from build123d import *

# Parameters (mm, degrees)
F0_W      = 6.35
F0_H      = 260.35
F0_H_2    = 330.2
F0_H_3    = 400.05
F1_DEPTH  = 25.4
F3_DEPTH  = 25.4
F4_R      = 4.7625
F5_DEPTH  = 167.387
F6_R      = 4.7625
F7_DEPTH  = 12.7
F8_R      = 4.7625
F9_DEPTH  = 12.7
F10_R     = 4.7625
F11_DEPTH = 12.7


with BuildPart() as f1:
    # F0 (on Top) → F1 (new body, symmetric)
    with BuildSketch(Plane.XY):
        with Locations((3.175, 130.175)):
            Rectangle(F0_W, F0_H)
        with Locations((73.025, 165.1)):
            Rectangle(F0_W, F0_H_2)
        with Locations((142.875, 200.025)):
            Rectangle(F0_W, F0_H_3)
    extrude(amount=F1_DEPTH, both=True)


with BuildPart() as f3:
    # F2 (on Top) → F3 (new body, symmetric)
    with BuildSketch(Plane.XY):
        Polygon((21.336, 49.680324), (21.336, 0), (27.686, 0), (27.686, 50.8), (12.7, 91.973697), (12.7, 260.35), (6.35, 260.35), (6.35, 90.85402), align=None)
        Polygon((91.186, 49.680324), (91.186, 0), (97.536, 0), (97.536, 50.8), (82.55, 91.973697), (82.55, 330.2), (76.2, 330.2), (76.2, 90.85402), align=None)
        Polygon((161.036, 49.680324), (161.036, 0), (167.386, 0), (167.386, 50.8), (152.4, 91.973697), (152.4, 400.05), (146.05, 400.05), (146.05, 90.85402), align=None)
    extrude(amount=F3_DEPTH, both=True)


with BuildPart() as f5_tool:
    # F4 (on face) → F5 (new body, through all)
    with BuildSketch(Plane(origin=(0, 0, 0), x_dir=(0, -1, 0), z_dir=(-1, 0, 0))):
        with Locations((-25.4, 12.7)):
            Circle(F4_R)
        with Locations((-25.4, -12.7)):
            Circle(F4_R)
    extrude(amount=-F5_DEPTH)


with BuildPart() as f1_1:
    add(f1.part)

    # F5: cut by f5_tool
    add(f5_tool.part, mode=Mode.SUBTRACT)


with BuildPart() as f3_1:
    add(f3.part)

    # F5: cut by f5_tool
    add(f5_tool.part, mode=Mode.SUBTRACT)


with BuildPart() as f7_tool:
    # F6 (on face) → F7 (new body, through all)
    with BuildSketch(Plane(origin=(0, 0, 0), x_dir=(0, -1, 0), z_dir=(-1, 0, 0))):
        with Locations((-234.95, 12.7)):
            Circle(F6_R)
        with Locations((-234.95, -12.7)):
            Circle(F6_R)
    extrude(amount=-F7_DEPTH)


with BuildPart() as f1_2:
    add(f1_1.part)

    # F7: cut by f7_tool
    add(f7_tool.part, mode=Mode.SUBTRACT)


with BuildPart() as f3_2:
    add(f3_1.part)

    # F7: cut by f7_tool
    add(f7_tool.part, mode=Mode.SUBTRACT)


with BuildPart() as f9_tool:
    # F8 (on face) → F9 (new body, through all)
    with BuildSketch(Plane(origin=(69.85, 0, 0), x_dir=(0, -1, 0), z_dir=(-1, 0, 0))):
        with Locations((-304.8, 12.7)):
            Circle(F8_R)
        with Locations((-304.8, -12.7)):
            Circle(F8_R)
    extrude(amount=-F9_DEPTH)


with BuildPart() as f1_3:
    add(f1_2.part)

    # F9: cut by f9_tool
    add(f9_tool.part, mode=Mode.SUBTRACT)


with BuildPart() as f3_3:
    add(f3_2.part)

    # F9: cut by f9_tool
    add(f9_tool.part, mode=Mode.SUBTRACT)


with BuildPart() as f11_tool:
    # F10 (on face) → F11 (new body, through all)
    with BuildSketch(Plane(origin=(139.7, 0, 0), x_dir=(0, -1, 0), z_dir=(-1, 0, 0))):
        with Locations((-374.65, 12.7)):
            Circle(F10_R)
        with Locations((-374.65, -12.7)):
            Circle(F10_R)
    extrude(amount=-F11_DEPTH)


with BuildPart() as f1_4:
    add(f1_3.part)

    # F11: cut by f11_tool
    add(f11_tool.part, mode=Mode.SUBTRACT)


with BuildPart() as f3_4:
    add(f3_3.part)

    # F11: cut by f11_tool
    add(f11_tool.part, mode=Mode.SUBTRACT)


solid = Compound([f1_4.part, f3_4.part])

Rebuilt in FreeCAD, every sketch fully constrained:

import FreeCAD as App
import Part
import Sketcher
from FreeCAD import Vector
Q = App.Units.Quantity


def add_polygon(sketch, points):
    """Adds a closed chain of lines whose ends are joined by coincident constraints."""
    first, n = sketch.GeometryCount, len(points)
    for a, b in zip(points, points[1:] + points[:1]):
        sketch.addGeometry(Part.LineSegment(App.Vector(*a, 0), App.Vector(*b, 0)), False)
    for i in range(n):
        sketch.addConstraint(Sketcher.Constraint("Coincident", first + i, 2, first + (i + 1) % n, 1))

doc = App.newDocument("Part")
body = doc.addObject("PartDesign::Body", "Body")
body.AllowCompound = True

# Sketch on XY plane
sketch1 = doc.addObject("Sketcher::SketchObject", "Sketch")
body.addObject(sketch1)
sketch1.AttachmentSupport = (doc.XY_Plane, [""])
sketch1.MapMode = "FlatFace"
add_polygon(sketch1, [(0, 260), (0, 0), (6, 0), (6, 260)])  # lines 0-3
add_polygon(sketch1, [(70, 330), (70, 0), (76, 0), (76, 330)])  # lines 4-7
add_polygon(sketch1, [(140, 400), (140, 0), (146, 0), (146, 400)])  # lines 8-11
sketch1.addConstraint([
    Sketcher.Constraint("Vertical", 0),
    Sketcher.Constraint("Horizontal", 1),
    Sketcher.Constraint("Vertical", 2),
    Sketcher.Constraint("Horizontal", 3),
    Sketcher.Constraint("Vertical", 4),
    Sketcher.Constraint("Horizontal", 5),
    Sketcher.Constraint("Vertical", 6),
    Sketcher.Constraint("Horizontal", 7),
    Sketcher.Constraint("Vertical", 8),
    Sketcher.Constraint("Horizontal", 9),
    Sketcher.Constraint("Vertical", 10),
    Sketcher.Constraint("Horizontal", 11),
    Sketcher.Constraint("Coincident", 0, 2, -1, 1),
    Sketcher.Constraint("PointOnObject", 4, 2, -1),
    Sketcher.Constraint("PointOnObject", 8, 2, -1),
    Sketcher.Constraint("Equal", 3, 5),
    Sketcher.Constraint("Equal", 7, 9),
    Sketcher.Constraint("DistanceY", 4, 2, 4, 1, Q("13 in")),
    Sketcher.Constraint("DistanceX", -1, 1, 5, 2, Q("3 in")),
    Sketcher.Constraint("DistanceX", 4, 2, 9, 2, Q("3 in")),
    Sketcher.Constraint("DistanceX", 1, 1, 1, 2, Q("0.25 in")),
    Sketcher.Constraint("DistanceY", 0, 2, 0, 1, Q("10.25 in")),
    Sketcher.Constraint("DistanceY", 8, 2, 8, 1, Q("15.75 in")),
])
pad1 = doc.addObject("PartDesign::Pad", "Pad")
body.addObject(pad1)
pad1.Profile = sketch1
pad1.Length = Q("2 in")
pad1.Midplane = True
body2 = doc.addObject("PartDesign::Body", "Body001")
body2.AllowCompound = True

# Sketch on XY plane
sketch2 = doc.addObject("Sketcher::SketchObject", "Sketch001")
body2.addObject(sketch2)
sketch2.AttachmentSupport = (doc.getObject("XY_Plane001"), [""])
sketch2.MapMode = "FlatFace"
add_polygon(sketch2, [(21, 50), (21, 0), (28, 0), (28, 51), (13, 92), (13, 260), (6, 260), (6, 91)])  # lines 0-7
add_polygon(sketch2, [(91, 50), (91, 0), (98, 0), (98, 51), (83, 92), (83, 330), (76, 330), (76, 91)])  # lines 8-15
add_polygon(sketch2, [(161, 50), (161, 0), (167, 0), (167, 51), (152, 92), (152, 400), (146, 400), (146, 91)])  # lines 16-23
sketch2.addConstraint([
    Sketcher.Constraint("Vertical", 0),
    Sketcher.Constraint("Horizontal", 1),
    Sketcher.Constraint("Vertical", 2),
    Sketcher.Constraint("Vertical", 4),
    Sketcher.Constraint("Horizontal", 5),
    Sketcher.Constraint("Vertical", 6),
    Sketcher.Constraint("Vertical", 8),
    Sketcher.Constraint("Horizontal", 9),
    Sketcher.Constraint("Vertical", 10),
    Sketcher.Constraint("Vertical", 12),
    Sketcher.Constraint("Horizontal", 13),
    Sketcher.Constraint("Vertical", 14),
    Sketcher.Constraint("Vertical", 16),
    Sketcher.Constraint("Horizontal", 17),
    Sketcher.Constraint("Vertical", 18),
    Sketcher.Constraint("Vertical", 20),
    Sketcher.Constraint("Horizontal", 21),
    Sketcher.Constraint("Vertical", 22),
    Sketcher.Constraint("PointOnObject", 0, 2, -1),
    Sketcher.Constraint("PointOnObject", 8, 2, -1),
    Sketcher.Constraint("PointOnObject", 16, 2, -1),
    Sketcher.Constraint("Parallel", 3, 7),
    Sketcher.Constraint("Parallel", 7, 11),
    Sketcher.Constraint("Parallel", 11, 15),
    Sketcher.Constraint("Parallel", 15, 19),
    Sketcher.Constraint("Parallel", 19, 23),
    Sketcher.Constraint("Horizontal", 2, 2, 10, 2),
    Sketcher.Constraint("Horizontal", 3, 2, 11, 2),
    Sketcher.Constraint("Horizontal", 6, 2, 14, 2),
    Sketcher.Constraint("Horizontal", 7, 2, 15, 2),
    Sketcher.Constraint("Horizontal", 10, 2, 18, 2),
    Sketcher.Constraint("Horizontal", 11, 2, 19, 2),
    Sketcher.Constraint("Horizontal", 14, 2, 22, 2),
    Sketcher.Constraint("Horizontal", 15, 2, 23, 2),
    Sketcher.Constraint("Equal", 1, 5),
    Sketcher.Constraint("Equal", 5, 9),
    Sketcher.Constraint("Equal", 13, 17),
    Sketcher.Constraint("DistanceY", 2, 1, 2, 2, Q("2 in")),
    Sketcher.Constraint("DistanceY", -1, 1, 12, 2, Q("13 in")),
    Sketcher.Constraint("DistanceX", -1, 1, 13, 2, Q("3 in")),
    Sketcher.Constraint("DistanceX", -1, 1, 19, 2, Q("6 in")),
    Sketcher.Constraint("Angle", 3, Q("110 deg")),
    Sketcher.Constraint("DistanceX", 0, 2, 9, 2, Q("3 in")),
    Sketcher.Constraint("DistanceX", 1, 1, 1, 2, Q("0.25 in")),
    Sketcher.Constraint("DistanceY", 4, 2, 20, 2, Q("5.5 in")),
    Sketcher.Constraint("DistanceX", -1, 1, 0, 2, Q("0.84 in")),
    Sketcher.Constraint("DistanceY", -1, 1, 4, 2, Q("10.25 in")),
    Sketcher.Constraint("DistanceY", 6, 2, 6, 1, Q("169.49598 mm")),
])
pad2 = doc.addObject("PartDesign::Pad", "Pad001")
body2.addObject(pad2)
pad2.Profile = sketch2
pad2.Length = Q("2 in")
pad2.Midplane = True
body3 = doc.addObject("PartDesign::Body", "Body002")
body3.AllowCompound = True

# Sketch on YZ plane
sketch3 = doc.addObject("Sketcher::SketchObject", "Sketch002")
body3.addObject(sketch3)
sketch3.AttachmentSupport = (doc.getObject("YZ_Plane002"), [""])
sketch3.MapMode = "FlatFace"
sketch3.addGeometry([
    Part.Circle(Vector(25.4, 12.7, 0), Vector(0, 0, 1), 4.8),
    Part.Circle(Vector(25.4, -12.7, 0), Vector(0, 0, 1), 4.8),
], False)
sketch3.addConstraint([
    Sketcher.Constraint("Equal", 0, 1),
    Sketcher.Constraint("Symmetric", 0, 3, 1, 3, -1),
    Sketcher.Constraint("Diameter", 0, Q("0.375 in")),
    Sketcher.Constraint("DistanceX", -1, 1, 0, 3, Q("1 in")),
    Sketcher.Constraint("DistanceY", 1, 3, 0, 3, Q("1 in")),
])
pad3 = doc.addObject("PartDesign::Pad", "Pad002")
body3.addObject(pad3)
pad3.Profile = sketch3
pad3.Length = 167.387
body.AllowCompound = True
doc.recompute()

body4 = doc.addObject("PartDesign::Body", "Body003")
body4.BaseFeature = body3
boolean = doc.addObject("PartDesign::Boolean", "Boolean")
body.addObject(boolean)
boolean.Type = "Cut"
boolean.addObjects([body4])
doc.recompute()
body2.AllowCompound = True
doc.recompute()

boolean2 = doc.addObject("PartDesign::Boolean", "Boolean001")
body2.addObject(boolean2)
boolean2.Type = "Cut"
boolean2.addObjects([body3])
body5 = doc.addObject("PartDesign::Body", "Body004")
body5.AllowCompound = True

# Sketch on YZ plane
sketch4 = doc.addObject("Sketcher::SketchObject", "Sketch003")
body5.addObject(sketch4)
sketch4.AttachmentSupport = (doc.getObject("YZ_Plane004"), [""])
sketch4.MapMode = "FlatFace"
sketch4.addGeometry([
    Part.Circle(Vector(234.9, 12.7, 0), Vector(0, 0, 1), 4.8),
    Part.Circle(Vector(234.9, -12.7, 0), Vector(0, 0, 1), 4.8),
], False)
sketch4.addConstraint([
    Sketcher.Constraint("Equal", 0, 1),
    Sketcher.Constraint("Symmetric", 0, 3, 1, 3, -1),
    Sketcher.Constraint("Diameter", 0, Q("0.375 in")),
    Sketcher.Constraint("DistanceY", 1, 3, 0, 3, Q("1 in")),
    Sketcher.Constraint("DistanceX", -1, 1, 0, 3, Q("9.25 in")),
])
pad4 = doc.addObject("PartDesign::Pad", "Pad003")
body5.addObject(pad4)
pad4.Profile = sketch4
pad4.Length = Q("0.5 in")
body.AllowCompound = True
doc.recompute()

body6 = doc.addObject("PartDesign::Body", "Body005")
body6.BaseFeature = body5
boolean3 = doc.addObject("PartDesign::Boolean", "Boolean002")
body.addObject(boolean3)
boolean3.Type = "Cut"
boolean3.addObjects([body6])
doc.recompute()
body2.AllowCompound = True
doc.recompute()

boolean4 = doc.addObject("PartDesign::Boolean", "Boolean003")
body2.addObject(boolean4)
boolean4.Type = "Cut"
boolean4.addObjects([body5])
body7 = doc.addObject("PartDesign::Body", "Body006")
body7.AllowCompound = True

# Sketch on YZ plane
sketch5 = doc.addObject("Sketcher::SketchObject", "Sketch004")
body7.addObject(sketch5)
sketch5.AttachmentSupport = (doc.getObject("YZ_Plane006"), [""])
sketch5.MapMode = "FlatFace"
sketch5.AttachmentOffset = App.Placement(Vector(0, 0, 2.75 * 25.4), App.Rotation())
sketch5.addGeometry([
    Part.Circle(Vector(304.8, 12.7, 0), Vector(0, 0, 1), 4.8),
    Part.Circle(Vector(304.8, -12.7, 0), Vector(0, 0, 1), 4.8),
], False)
sketch5.addConstraint([
    Sketcher.Constraint("Equal", 0, 1),
    Sketcher.Constraint("Symmetric", 0, 3, 1, 3, -1),
    Sketcher.Constraint("Diameter", 0, Q("0.375 in")),
    Sketcher.Constraint("DistanceX", -1, 1, 0, 3, Q("12 in")),
    Sketcher.Constraint("DistanceY", 1, 3, 0, 3, Q("1 in")),
])
pad5 = doc.addObject("PartDesign::Pad", "Pad004")
body7.addObject(pad5)
pad5.Profile = sketch5
pad5.Length = Q("0.5 in")
body.AllowCompound = True
doc.recompute()

body8 = doc.addObject("PartDesign::Body", "Body007")
body8.BaseFeature = body7
boolean5 = doc.addObject("PartDesign::Boolean", "Boolean004")
body.addObject(boolean5)
boolean5.Type = "Cut"
boolean5.addObjects([body8])
doc.recompute()
body2.AllowCompound = True
doc.recompute()

boolean6 = doc.addObject("PartDesign::Boolean", "Boolean005")
body2.addObject(boolean6)
boolean6.Type = "Cut"
boolean6.addObjects([body7])
body9 = doc.addObject("PartDesign::Body", "Body008")
body9.AllowCompound = True

# Sketch on YZ plane
sketch6 = doc.addObject("Sketcher::SketchObject", "Sketch005")
body9.addObject(sketch6)
sketch6.AttachmentSupport = (doc.getObject("YZ_Plane008"), [""])
sketch6.MapMode = "FlatFace"
sketch6.AttachmentOffset = App.Placement(Vector(0, 0, 5.5 * 25.4), App.Rotation())
sketch6.addGeometry([
    Part.Circle(Vector(374.6, 12.7, 0), Vector(0, 0, 1), 4.8),
    Part.Circle(Vector(374.6, -12.7, 0), Vector(0, 0, 1), 4.8),
], False)
sketch6.addConstraint([
    Sketcher.Constraint("Equal", 0, 1),
    Sketcher.Constraint("Symmetric", 0, 3, 1, 3, -1),
    Sketcher.Constraint("Diameter", 0, Q("0.375 in")),
    Sketcher.Constraint("DistanceY", 1, 3, 0, 3, Q("1 in")),
    Sketcher.Constraint("DistanceX", -1, 1, 0, 3, Q("14.75 in")),
])
pad6 = doc.addObject("PartDesign::Pad", "Pad005")
body9.addObject(pad6)
pad6.Profile = sketch6
pad6.Length = Q("0.5 in")
body.AllowCompound = True
doc.recompute()

body10 = doc.addObject("PartDesign::Body", "Body009")
body10.BaseFeature = body9
boolean7 = doc.addObject("PartDesign::Boolean", "Boolean006")
body.addObject(boolean7)
boolean7.Type = "Cut"
boolean7.addObjects([body10])
doc.recompute()
body2.AllowCompound = True
doc.recompute()

boolean8 = doc.addObject("PartDesign::Boolean", "Boolean007")
body2.addObject(boolean8)
boolean8.Type = "Cut"
boolean8.addObjects([body9])

doc.recompute()
